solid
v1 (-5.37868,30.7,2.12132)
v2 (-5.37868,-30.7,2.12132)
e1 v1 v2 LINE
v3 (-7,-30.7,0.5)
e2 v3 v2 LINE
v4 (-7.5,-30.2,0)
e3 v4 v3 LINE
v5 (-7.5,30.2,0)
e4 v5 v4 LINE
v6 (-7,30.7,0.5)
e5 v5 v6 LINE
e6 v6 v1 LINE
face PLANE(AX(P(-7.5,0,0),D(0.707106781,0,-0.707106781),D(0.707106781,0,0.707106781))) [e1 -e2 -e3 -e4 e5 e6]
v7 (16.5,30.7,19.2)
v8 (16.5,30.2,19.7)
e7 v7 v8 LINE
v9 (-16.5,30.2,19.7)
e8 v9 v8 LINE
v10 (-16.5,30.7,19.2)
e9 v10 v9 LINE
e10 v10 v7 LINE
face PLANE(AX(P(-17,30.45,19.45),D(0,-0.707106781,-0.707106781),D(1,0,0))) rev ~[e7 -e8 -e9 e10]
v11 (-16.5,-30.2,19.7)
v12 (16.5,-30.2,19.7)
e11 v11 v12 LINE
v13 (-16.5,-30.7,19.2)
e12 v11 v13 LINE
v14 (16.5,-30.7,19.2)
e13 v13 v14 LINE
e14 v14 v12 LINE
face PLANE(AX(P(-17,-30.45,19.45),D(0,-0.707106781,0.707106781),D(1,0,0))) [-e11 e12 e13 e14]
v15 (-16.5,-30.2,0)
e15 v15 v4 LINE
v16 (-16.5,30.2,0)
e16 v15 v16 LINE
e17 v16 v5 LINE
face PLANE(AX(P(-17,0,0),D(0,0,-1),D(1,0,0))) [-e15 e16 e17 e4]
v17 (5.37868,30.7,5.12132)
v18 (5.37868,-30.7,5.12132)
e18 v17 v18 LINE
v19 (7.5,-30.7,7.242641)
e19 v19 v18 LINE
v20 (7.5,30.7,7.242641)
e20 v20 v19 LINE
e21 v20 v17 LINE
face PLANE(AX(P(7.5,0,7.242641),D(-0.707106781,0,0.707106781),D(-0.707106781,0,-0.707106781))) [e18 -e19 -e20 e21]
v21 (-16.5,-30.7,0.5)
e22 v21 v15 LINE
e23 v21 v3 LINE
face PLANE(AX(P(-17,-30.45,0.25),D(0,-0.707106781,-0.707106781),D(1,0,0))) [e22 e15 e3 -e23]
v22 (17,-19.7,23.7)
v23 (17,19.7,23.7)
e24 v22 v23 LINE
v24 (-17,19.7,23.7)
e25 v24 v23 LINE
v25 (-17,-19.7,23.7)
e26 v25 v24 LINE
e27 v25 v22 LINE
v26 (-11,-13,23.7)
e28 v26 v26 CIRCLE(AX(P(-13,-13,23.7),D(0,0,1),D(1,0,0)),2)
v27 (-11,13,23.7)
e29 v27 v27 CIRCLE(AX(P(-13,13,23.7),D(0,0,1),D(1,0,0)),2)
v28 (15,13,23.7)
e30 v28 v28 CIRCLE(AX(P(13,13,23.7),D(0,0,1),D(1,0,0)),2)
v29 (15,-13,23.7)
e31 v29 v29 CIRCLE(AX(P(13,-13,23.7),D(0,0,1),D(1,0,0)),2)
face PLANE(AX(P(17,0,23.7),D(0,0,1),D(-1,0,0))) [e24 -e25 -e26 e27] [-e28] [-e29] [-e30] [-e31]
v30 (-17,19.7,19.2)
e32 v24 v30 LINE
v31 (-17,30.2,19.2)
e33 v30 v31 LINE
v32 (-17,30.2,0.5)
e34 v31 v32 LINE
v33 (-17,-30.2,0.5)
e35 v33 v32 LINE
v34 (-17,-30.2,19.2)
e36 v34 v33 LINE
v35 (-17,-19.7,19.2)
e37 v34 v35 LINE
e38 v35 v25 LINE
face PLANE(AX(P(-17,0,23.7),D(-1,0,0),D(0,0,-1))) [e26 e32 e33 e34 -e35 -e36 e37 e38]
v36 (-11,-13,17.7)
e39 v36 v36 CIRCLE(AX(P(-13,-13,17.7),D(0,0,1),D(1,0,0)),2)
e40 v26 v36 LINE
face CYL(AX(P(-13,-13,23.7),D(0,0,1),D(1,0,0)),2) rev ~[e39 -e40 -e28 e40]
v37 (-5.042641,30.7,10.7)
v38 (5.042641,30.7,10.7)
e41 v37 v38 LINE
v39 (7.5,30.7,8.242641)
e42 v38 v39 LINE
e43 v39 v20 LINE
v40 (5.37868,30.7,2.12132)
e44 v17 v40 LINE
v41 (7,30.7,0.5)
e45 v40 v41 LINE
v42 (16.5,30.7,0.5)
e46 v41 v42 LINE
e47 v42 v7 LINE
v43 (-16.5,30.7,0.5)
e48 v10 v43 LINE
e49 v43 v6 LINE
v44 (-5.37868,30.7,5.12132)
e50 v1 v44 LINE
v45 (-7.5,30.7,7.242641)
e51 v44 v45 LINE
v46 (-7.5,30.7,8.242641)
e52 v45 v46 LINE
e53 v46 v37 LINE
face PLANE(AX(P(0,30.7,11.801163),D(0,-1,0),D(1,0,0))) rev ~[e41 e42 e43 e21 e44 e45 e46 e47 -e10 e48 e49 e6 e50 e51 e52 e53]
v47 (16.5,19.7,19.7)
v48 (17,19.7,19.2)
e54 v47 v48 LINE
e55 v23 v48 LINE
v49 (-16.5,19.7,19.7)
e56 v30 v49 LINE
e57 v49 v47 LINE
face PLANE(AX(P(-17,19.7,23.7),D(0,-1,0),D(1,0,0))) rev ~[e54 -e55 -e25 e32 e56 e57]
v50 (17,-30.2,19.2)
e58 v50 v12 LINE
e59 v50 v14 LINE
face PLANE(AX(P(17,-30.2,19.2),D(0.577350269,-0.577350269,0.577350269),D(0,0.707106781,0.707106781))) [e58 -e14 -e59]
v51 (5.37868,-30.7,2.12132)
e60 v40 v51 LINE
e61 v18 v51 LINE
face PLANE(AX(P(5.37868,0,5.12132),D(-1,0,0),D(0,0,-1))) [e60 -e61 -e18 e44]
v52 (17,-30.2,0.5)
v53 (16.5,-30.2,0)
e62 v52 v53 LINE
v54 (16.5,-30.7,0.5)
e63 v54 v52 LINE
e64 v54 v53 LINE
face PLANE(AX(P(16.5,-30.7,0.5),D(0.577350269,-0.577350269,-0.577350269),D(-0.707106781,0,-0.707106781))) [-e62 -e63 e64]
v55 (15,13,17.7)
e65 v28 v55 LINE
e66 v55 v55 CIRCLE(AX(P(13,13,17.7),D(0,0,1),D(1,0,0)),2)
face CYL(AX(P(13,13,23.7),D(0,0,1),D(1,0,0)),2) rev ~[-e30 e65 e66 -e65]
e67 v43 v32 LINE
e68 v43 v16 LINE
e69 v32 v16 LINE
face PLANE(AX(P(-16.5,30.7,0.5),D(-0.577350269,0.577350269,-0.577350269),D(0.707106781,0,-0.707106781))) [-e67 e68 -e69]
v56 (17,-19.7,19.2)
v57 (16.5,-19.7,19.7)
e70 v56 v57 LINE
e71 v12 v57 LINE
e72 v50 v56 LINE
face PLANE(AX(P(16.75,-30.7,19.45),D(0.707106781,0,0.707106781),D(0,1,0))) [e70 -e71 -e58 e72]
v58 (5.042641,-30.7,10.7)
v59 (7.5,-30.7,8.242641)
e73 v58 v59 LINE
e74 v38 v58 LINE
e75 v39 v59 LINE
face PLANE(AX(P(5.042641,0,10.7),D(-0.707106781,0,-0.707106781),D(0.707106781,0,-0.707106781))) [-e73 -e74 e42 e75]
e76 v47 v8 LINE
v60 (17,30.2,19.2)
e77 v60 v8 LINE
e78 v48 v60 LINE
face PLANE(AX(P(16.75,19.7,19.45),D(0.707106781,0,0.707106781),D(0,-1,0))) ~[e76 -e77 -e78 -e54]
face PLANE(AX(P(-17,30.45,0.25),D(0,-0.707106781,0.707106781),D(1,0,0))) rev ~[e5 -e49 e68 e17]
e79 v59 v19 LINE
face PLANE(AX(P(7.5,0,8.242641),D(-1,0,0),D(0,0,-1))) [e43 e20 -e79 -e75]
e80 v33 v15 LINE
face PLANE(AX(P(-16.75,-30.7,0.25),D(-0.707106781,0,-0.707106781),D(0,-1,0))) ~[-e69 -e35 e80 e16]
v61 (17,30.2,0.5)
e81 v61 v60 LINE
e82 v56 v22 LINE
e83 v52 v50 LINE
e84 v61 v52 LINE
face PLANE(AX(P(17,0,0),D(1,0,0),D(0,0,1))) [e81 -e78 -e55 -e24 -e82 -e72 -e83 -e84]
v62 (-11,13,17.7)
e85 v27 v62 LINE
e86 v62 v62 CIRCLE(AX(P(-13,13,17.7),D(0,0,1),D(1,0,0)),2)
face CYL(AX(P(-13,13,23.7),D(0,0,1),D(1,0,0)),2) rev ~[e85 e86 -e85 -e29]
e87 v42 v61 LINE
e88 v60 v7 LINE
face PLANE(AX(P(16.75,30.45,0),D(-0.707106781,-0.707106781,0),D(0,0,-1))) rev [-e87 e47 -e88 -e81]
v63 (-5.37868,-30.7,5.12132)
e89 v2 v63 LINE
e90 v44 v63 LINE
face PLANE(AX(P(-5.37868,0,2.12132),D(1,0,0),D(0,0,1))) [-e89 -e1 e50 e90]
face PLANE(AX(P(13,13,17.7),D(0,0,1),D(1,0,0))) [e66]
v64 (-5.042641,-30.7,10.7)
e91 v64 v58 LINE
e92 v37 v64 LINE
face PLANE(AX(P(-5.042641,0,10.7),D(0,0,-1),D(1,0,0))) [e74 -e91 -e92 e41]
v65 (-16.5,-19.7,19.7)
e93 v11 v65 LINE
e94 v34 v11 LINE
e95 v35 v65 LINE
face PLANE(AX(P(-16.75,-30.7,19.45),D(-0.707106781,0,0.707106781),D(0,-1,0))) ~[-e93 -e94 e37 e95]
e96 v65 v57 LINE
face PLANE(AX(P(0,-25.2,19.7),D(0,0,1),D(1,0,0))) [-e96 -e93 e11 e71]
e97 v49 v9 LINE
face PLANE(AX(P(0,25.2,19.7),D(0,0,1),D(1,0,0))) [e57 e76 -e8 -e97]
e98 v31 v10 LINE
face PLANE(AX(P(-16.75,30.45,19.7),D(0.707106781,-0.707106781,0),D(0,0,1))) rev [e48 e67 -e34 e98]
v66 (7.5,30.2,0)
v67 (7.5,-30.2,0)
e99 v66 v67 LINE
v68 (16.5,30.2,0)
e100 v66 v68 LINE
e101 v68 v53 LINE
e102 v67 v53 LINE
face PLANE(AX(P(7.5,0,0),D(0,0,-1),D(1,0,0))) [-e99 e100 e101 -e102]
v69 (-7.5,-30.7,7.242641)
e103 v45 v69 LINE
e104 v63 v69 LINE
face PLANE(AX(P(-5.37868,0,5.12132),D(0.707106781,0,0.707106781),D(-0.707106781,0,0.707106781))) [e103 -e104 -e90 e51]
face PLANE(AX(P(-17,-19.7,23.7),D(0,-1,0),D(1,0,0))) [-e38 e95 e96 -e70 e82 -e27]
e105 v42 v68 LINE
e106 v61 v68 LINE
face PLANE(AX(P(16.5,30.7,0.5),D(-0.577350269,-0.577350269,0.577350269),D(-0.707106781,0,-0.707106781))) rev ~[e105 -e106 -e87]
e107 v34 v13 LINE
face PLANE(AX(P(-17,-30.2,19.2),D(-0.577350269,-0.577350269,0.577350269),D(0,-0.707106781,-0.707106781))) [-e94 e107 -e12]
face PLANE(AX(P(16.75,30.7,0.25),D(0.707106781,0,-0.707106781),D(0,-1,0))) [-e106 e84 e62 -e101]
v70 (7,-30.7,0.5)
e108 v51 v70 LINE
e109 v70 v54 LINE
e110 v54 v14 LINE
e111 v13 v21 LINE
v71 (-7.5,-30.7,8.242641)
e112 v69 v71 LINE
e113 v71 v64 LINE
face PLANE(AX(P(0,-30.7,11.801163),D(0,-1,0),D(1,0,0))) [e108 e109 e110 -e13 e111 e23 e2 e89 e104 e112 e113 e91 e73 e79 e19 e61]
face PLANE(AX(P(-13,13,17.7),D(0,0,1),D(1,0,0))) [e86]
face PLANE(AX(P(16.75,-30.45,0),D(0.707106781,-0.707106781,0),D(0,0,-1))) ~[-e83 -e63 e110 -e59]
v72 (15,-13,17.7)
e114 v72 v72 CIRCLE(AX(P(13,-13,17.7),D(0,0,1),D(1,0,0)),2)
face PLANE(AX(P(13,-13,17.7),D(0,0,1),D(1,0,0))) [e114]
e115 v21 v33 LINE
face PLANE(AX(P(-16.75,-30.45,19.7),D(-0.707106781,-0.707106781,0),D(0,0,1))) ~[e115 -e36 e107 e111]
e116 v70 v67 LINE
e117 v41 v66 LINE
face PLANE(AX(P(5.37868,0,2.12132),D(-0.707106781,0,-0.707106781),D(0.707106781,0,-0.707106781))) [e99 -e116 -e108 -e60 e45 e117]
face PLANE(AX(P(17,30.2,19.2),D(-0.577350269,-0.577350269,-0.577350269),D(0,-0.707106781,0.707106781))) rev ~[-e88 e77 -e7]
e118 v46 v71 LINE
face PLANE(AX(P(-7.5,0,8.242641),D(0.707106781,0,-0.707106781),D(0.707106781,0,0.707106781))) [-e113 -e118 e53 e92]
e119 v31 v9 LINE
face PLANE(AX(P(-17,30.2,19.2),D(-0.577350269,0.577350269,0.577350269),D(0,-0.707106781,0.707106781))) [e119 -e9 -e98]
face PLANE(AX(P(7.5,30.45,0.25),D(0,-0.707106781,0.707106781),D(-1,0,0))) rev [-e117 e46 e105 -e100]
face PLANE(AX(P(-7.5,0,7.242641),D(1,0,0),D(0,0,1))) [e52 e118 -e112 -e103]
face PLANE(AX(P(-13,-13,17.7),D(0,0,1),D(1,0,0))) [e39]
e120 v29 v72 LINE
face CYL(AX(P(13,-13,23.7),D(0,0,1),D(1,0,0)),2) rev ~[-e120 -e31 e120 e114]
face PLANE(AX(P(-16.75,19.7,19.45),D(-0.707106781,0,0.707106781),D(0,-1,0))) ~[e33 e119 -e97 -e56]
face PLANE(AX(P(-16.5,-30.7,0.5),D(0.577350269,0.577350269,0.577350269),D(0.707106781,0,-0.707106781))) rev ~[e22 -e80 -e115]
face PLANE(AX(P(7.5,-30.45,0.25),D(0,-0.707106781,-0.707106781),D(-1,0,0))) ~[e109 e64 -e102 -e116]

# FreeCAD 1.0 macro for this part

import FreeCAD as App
import Part
import Sketcher
from FreeCAD import Vector
Q = App.Units.Quantity


def edges_at(feature, points):
    """Names of the edges that pass closest to the given points."""
    edges = feature.Shape.Edges
    near = lambda p: min(range(len(edges)), key=lambda i: edges[i].distToShape(Part.Vertex(*p))[0])
    return sorted({f"Edge{near(p) + 1}" for p in points})


def add_polygon(sketch, points):
    """Adds a closed chain of lines whose ends are joined by coincident constraints."""
    first, n = sketch.GeometryCount, len(points)
    for a, b in zip(points, points[1:] + points[:1]):
        sketch.addGeometry(Part.LineSegment(App.Vector(*a, 0), App.Vector(*b, 0)), False)
    for i in range(n):
        sketch.addConstraint(Sketcher.Constraint("Coincident", first + i, 2, first + (i + 1) % n, 1))

doc = App.newDocument("Part")
body = doc.addObject("PartDesign::Body", "Body")

# Sketch on XZ plane
sketch1 = body.newObject("Sketcher::SketchObject", "Sketch")
sketch1.AttachmentSupport = (doc.getObject("XZ_Plane"), [""])
sketch1.MapMode = "FlatFace"
add_polygon(sketch1, [(-17, 0), (-7.5, 0), (-5.4, 2.1), (-5.4, 5.1), (-7.5, 7.2), (-7.5, 8.2), (-5, 10.7), (5, 10.7), (7.5, 8.2), (7.5, 7.2), (5.4, 5.1), (5.4, 2.1), (7.5, 0), (17, 0), (17, 23.7), (-17, 23.7)])  # lines 0-15
sketch1.addConstraint([
    Sketcher.Constraint("Horizontal", 0),
    Sketcher.Constraint("Vertical", 2),
    Sketcher.Constraint("Vertical", 4),
    Sketcher.Constraint("Horizontal", 6),
    Sketcher.Constraint("Vertical", 8),
    Sketcher.Constraint("Vertical", 10),
    Sketcher.Constraint("Horizontal", 12),
    Sketcher.Constraint("Vertical", 13),
    Sketcher.Constraint("Horizontal", 14),
    Sketcher.Constraint("Vertical", 15),
    Sketcher.Constraint("Symmetric", 0, 2, 11, 2, -1, 1),
    Sketcher.Constraint("Symmetric", 4, 2, 7, 2, -2),
    Sketcher.Constraint("Symmetric", 2, 2, 9, 2, -2),
    Sketcher.Constraint("Symmetric", 12, 2, 15, 2, -2),
    Sketcher.Constraint("Perpendicular", 1, 3),
    Sketcher.Constraint("Perpendicular", 3, 5),
    Sketcher.Constraint("Perpendicular", 5, 7),
    Sketcher.Constraint("Perpendicular", 7, 9),
    Sketcher.Constraint("Perpendicular", 9, 11),
    Sketcher.Constraint("Horizontal", 3, 2, 8, 2),
    Sketcher.Constraint("Vertical", 0, 2, 3, 2),
    Sketcher.Constraint("DistanceX", 14, 2, 14, 1, Q("34 mm")),
    Sketcher.Constraint("DistanceY", 2, 1, 2, 2, Q("3 mm")),
    Sketcher.Constraint("DistanceY", 4, 1, 4, 2, Q("1 mm")),
    Sketcher.Constraint("Distance", 1, Q("3 mm")),
    Sketcher.Constraint("DistanceX", 0, 1, 0, 2, Q("9.5 mm")),
    Sketcher.Constraint("DistanceY", 13, 1, 13, 2, Q("23.7 mm")),
    Sketcher.Constraint("DistanceY", 6, 2, 13, 2, Q("13 mm")),
])
pad1 = body.newObject("PartDesign::Pad", "Pad")
pad1.Profile = sketch1
pad1.Length = 61.4
pad1.Midplane = True

# Sketch on XY plane
sketch2 = body.newObject("Sketcher::SketchObject", "Sketch001")
sketch2.AttachmentSupport = (doc.getObject("XY_Plane"), [""])
sketch2.MapMode = "FlatFace"
sketch2.AttachmentOffset = App.Placement(Vector(0, 0, 23.7), App.Rotation())
sketch2.addGeometry([
    Part.Circle(Vector(-13, 13, 0), Vector(0, 0, 1), 2),
    Part.Circle(Vector(13, 13, 0), Vector(0, 0, 1), 2),
    Part.Circle(Vector(13, -13, 0), Vector(0, 0, 1), 2),
    Part.Circle(Vector(-13, -13, 0), Vector(0, 0, 1), 2),
], False)
sketch2.addConstraint([
    Sketcher.Constraint("Equal", 0, 1),
    Sketcher.Constraint("Equal", 1, 2),
    Sketcher.Constraint("Equal", 2, 3),
    Sketcher.Constraint("Symmetric", 0, 3, 2, 3, -1, 1),
    Sketcher.Constraint("Symmetric", 1, 3, 3, 3, -1, 1),
    Sketcher.Constraint("Symmetric", 0, 3, 1, 3, -2),
    Sketcher.Constraint("Diameter", 0, Q("4 mm")),
    Sketcher.Constraint("DistanceX", 0, 3, -1, 1, Q("13 mm")),
    Sketcher.Constraint("DistanceY", -1, 1, 0, 3, Q("13 mm")),
])
pocket1 = body.newObject("PartDesign::Pocket", "Pocket")
pocket1.Profile = sketch2
pocket1.Length = 6

# Sketch on XY plane
sketch3 = body.newObject("Sketcher::SketchObject", "Sketch002")
sketch3.AttachmentSupport = (doc.getObject("XY_Plane"), [""])
sketch3.MapMode = "FlatFace"
sketch3.AttachmentOffset = App.Placement(Vector(0, 0, 23.7), App.Rotation())
add_polygon(sketch3, [(-17, 31), (-17, 20), (17, 20), (17, 31)])  # lines 0-3
add_polygon(sketch3, [(-17, -20), (-17, -31), (17, -31), (17, -20)])  # lines 4-7
sketch3.addConstraint([
    Sketcher.Constraint("Vertical", 0),
    Sketcher.Constraint("Horizontal", 1),
    Sketcher.Constraint("Vertical", 2),
    Sketcher.Constraint("Horizontal", 3),
    Sketcher.Constraint("Vertical", 4),
    Sketcher.Constraint("Horizontal", 5),
    Sketcher.Constraint("Vertical", 6),
    Sketcher.Constraint("Horizontal", 7),
    Sketcher.Constraint("Symmetric", 2, 2, 4, 2, -1, 1),
    Sketcher.Constraint("Symmetric", 0, 2, 6, 2, -1, 1),
    Sketcher.Constraint("Vertical", 3, 2, 4, 2),
    Sketcher.Constraint("DistanceX", 1, 1, 1, 2, Q("34 mm")),
    Sketcher.Constraint("DistanceY", 0, 2, 0, 1, Q("11 mm")),
    Sketcher.Constraint("DistanceY", -1, 1, 0, 2, Q("19.7 mm")),
])
pocket2 = body.newObject("PartDesign::Pocket", "Pocket001")
pocket2.Profile = sketch3
pocket2.Length = 4
doc.recompute()

chamfer = body.newObject("PartDesign::Chamfer", "Chamfer")
chamfer.Base = (pocket2, edges_at(pocket2, [
    (17, 0, 0),
    (-17, 0, 0),
    (0, -30.7, 19.7),
    (-17, -25.2, 19.7),
    (17, -30.7, 9.85),
    (-17, -30.7, 9.85),
    (0, 30.7, 19.7),
    (17, 30.7, 9.85),
    (-17, 30.7, 9.85),
    (12.25, 30.7, 0),
    (-12.25, 30.7, 0),
    (-12.25, -30.7, 0),
    (12.25, -30.7, 0),
    (17, -25.2, 19.7),
    (-17, 25.2, 19.7),
    (17, 25.2, 19.7),
]))
chamfer.Size = 0.5

doc.recompute()
